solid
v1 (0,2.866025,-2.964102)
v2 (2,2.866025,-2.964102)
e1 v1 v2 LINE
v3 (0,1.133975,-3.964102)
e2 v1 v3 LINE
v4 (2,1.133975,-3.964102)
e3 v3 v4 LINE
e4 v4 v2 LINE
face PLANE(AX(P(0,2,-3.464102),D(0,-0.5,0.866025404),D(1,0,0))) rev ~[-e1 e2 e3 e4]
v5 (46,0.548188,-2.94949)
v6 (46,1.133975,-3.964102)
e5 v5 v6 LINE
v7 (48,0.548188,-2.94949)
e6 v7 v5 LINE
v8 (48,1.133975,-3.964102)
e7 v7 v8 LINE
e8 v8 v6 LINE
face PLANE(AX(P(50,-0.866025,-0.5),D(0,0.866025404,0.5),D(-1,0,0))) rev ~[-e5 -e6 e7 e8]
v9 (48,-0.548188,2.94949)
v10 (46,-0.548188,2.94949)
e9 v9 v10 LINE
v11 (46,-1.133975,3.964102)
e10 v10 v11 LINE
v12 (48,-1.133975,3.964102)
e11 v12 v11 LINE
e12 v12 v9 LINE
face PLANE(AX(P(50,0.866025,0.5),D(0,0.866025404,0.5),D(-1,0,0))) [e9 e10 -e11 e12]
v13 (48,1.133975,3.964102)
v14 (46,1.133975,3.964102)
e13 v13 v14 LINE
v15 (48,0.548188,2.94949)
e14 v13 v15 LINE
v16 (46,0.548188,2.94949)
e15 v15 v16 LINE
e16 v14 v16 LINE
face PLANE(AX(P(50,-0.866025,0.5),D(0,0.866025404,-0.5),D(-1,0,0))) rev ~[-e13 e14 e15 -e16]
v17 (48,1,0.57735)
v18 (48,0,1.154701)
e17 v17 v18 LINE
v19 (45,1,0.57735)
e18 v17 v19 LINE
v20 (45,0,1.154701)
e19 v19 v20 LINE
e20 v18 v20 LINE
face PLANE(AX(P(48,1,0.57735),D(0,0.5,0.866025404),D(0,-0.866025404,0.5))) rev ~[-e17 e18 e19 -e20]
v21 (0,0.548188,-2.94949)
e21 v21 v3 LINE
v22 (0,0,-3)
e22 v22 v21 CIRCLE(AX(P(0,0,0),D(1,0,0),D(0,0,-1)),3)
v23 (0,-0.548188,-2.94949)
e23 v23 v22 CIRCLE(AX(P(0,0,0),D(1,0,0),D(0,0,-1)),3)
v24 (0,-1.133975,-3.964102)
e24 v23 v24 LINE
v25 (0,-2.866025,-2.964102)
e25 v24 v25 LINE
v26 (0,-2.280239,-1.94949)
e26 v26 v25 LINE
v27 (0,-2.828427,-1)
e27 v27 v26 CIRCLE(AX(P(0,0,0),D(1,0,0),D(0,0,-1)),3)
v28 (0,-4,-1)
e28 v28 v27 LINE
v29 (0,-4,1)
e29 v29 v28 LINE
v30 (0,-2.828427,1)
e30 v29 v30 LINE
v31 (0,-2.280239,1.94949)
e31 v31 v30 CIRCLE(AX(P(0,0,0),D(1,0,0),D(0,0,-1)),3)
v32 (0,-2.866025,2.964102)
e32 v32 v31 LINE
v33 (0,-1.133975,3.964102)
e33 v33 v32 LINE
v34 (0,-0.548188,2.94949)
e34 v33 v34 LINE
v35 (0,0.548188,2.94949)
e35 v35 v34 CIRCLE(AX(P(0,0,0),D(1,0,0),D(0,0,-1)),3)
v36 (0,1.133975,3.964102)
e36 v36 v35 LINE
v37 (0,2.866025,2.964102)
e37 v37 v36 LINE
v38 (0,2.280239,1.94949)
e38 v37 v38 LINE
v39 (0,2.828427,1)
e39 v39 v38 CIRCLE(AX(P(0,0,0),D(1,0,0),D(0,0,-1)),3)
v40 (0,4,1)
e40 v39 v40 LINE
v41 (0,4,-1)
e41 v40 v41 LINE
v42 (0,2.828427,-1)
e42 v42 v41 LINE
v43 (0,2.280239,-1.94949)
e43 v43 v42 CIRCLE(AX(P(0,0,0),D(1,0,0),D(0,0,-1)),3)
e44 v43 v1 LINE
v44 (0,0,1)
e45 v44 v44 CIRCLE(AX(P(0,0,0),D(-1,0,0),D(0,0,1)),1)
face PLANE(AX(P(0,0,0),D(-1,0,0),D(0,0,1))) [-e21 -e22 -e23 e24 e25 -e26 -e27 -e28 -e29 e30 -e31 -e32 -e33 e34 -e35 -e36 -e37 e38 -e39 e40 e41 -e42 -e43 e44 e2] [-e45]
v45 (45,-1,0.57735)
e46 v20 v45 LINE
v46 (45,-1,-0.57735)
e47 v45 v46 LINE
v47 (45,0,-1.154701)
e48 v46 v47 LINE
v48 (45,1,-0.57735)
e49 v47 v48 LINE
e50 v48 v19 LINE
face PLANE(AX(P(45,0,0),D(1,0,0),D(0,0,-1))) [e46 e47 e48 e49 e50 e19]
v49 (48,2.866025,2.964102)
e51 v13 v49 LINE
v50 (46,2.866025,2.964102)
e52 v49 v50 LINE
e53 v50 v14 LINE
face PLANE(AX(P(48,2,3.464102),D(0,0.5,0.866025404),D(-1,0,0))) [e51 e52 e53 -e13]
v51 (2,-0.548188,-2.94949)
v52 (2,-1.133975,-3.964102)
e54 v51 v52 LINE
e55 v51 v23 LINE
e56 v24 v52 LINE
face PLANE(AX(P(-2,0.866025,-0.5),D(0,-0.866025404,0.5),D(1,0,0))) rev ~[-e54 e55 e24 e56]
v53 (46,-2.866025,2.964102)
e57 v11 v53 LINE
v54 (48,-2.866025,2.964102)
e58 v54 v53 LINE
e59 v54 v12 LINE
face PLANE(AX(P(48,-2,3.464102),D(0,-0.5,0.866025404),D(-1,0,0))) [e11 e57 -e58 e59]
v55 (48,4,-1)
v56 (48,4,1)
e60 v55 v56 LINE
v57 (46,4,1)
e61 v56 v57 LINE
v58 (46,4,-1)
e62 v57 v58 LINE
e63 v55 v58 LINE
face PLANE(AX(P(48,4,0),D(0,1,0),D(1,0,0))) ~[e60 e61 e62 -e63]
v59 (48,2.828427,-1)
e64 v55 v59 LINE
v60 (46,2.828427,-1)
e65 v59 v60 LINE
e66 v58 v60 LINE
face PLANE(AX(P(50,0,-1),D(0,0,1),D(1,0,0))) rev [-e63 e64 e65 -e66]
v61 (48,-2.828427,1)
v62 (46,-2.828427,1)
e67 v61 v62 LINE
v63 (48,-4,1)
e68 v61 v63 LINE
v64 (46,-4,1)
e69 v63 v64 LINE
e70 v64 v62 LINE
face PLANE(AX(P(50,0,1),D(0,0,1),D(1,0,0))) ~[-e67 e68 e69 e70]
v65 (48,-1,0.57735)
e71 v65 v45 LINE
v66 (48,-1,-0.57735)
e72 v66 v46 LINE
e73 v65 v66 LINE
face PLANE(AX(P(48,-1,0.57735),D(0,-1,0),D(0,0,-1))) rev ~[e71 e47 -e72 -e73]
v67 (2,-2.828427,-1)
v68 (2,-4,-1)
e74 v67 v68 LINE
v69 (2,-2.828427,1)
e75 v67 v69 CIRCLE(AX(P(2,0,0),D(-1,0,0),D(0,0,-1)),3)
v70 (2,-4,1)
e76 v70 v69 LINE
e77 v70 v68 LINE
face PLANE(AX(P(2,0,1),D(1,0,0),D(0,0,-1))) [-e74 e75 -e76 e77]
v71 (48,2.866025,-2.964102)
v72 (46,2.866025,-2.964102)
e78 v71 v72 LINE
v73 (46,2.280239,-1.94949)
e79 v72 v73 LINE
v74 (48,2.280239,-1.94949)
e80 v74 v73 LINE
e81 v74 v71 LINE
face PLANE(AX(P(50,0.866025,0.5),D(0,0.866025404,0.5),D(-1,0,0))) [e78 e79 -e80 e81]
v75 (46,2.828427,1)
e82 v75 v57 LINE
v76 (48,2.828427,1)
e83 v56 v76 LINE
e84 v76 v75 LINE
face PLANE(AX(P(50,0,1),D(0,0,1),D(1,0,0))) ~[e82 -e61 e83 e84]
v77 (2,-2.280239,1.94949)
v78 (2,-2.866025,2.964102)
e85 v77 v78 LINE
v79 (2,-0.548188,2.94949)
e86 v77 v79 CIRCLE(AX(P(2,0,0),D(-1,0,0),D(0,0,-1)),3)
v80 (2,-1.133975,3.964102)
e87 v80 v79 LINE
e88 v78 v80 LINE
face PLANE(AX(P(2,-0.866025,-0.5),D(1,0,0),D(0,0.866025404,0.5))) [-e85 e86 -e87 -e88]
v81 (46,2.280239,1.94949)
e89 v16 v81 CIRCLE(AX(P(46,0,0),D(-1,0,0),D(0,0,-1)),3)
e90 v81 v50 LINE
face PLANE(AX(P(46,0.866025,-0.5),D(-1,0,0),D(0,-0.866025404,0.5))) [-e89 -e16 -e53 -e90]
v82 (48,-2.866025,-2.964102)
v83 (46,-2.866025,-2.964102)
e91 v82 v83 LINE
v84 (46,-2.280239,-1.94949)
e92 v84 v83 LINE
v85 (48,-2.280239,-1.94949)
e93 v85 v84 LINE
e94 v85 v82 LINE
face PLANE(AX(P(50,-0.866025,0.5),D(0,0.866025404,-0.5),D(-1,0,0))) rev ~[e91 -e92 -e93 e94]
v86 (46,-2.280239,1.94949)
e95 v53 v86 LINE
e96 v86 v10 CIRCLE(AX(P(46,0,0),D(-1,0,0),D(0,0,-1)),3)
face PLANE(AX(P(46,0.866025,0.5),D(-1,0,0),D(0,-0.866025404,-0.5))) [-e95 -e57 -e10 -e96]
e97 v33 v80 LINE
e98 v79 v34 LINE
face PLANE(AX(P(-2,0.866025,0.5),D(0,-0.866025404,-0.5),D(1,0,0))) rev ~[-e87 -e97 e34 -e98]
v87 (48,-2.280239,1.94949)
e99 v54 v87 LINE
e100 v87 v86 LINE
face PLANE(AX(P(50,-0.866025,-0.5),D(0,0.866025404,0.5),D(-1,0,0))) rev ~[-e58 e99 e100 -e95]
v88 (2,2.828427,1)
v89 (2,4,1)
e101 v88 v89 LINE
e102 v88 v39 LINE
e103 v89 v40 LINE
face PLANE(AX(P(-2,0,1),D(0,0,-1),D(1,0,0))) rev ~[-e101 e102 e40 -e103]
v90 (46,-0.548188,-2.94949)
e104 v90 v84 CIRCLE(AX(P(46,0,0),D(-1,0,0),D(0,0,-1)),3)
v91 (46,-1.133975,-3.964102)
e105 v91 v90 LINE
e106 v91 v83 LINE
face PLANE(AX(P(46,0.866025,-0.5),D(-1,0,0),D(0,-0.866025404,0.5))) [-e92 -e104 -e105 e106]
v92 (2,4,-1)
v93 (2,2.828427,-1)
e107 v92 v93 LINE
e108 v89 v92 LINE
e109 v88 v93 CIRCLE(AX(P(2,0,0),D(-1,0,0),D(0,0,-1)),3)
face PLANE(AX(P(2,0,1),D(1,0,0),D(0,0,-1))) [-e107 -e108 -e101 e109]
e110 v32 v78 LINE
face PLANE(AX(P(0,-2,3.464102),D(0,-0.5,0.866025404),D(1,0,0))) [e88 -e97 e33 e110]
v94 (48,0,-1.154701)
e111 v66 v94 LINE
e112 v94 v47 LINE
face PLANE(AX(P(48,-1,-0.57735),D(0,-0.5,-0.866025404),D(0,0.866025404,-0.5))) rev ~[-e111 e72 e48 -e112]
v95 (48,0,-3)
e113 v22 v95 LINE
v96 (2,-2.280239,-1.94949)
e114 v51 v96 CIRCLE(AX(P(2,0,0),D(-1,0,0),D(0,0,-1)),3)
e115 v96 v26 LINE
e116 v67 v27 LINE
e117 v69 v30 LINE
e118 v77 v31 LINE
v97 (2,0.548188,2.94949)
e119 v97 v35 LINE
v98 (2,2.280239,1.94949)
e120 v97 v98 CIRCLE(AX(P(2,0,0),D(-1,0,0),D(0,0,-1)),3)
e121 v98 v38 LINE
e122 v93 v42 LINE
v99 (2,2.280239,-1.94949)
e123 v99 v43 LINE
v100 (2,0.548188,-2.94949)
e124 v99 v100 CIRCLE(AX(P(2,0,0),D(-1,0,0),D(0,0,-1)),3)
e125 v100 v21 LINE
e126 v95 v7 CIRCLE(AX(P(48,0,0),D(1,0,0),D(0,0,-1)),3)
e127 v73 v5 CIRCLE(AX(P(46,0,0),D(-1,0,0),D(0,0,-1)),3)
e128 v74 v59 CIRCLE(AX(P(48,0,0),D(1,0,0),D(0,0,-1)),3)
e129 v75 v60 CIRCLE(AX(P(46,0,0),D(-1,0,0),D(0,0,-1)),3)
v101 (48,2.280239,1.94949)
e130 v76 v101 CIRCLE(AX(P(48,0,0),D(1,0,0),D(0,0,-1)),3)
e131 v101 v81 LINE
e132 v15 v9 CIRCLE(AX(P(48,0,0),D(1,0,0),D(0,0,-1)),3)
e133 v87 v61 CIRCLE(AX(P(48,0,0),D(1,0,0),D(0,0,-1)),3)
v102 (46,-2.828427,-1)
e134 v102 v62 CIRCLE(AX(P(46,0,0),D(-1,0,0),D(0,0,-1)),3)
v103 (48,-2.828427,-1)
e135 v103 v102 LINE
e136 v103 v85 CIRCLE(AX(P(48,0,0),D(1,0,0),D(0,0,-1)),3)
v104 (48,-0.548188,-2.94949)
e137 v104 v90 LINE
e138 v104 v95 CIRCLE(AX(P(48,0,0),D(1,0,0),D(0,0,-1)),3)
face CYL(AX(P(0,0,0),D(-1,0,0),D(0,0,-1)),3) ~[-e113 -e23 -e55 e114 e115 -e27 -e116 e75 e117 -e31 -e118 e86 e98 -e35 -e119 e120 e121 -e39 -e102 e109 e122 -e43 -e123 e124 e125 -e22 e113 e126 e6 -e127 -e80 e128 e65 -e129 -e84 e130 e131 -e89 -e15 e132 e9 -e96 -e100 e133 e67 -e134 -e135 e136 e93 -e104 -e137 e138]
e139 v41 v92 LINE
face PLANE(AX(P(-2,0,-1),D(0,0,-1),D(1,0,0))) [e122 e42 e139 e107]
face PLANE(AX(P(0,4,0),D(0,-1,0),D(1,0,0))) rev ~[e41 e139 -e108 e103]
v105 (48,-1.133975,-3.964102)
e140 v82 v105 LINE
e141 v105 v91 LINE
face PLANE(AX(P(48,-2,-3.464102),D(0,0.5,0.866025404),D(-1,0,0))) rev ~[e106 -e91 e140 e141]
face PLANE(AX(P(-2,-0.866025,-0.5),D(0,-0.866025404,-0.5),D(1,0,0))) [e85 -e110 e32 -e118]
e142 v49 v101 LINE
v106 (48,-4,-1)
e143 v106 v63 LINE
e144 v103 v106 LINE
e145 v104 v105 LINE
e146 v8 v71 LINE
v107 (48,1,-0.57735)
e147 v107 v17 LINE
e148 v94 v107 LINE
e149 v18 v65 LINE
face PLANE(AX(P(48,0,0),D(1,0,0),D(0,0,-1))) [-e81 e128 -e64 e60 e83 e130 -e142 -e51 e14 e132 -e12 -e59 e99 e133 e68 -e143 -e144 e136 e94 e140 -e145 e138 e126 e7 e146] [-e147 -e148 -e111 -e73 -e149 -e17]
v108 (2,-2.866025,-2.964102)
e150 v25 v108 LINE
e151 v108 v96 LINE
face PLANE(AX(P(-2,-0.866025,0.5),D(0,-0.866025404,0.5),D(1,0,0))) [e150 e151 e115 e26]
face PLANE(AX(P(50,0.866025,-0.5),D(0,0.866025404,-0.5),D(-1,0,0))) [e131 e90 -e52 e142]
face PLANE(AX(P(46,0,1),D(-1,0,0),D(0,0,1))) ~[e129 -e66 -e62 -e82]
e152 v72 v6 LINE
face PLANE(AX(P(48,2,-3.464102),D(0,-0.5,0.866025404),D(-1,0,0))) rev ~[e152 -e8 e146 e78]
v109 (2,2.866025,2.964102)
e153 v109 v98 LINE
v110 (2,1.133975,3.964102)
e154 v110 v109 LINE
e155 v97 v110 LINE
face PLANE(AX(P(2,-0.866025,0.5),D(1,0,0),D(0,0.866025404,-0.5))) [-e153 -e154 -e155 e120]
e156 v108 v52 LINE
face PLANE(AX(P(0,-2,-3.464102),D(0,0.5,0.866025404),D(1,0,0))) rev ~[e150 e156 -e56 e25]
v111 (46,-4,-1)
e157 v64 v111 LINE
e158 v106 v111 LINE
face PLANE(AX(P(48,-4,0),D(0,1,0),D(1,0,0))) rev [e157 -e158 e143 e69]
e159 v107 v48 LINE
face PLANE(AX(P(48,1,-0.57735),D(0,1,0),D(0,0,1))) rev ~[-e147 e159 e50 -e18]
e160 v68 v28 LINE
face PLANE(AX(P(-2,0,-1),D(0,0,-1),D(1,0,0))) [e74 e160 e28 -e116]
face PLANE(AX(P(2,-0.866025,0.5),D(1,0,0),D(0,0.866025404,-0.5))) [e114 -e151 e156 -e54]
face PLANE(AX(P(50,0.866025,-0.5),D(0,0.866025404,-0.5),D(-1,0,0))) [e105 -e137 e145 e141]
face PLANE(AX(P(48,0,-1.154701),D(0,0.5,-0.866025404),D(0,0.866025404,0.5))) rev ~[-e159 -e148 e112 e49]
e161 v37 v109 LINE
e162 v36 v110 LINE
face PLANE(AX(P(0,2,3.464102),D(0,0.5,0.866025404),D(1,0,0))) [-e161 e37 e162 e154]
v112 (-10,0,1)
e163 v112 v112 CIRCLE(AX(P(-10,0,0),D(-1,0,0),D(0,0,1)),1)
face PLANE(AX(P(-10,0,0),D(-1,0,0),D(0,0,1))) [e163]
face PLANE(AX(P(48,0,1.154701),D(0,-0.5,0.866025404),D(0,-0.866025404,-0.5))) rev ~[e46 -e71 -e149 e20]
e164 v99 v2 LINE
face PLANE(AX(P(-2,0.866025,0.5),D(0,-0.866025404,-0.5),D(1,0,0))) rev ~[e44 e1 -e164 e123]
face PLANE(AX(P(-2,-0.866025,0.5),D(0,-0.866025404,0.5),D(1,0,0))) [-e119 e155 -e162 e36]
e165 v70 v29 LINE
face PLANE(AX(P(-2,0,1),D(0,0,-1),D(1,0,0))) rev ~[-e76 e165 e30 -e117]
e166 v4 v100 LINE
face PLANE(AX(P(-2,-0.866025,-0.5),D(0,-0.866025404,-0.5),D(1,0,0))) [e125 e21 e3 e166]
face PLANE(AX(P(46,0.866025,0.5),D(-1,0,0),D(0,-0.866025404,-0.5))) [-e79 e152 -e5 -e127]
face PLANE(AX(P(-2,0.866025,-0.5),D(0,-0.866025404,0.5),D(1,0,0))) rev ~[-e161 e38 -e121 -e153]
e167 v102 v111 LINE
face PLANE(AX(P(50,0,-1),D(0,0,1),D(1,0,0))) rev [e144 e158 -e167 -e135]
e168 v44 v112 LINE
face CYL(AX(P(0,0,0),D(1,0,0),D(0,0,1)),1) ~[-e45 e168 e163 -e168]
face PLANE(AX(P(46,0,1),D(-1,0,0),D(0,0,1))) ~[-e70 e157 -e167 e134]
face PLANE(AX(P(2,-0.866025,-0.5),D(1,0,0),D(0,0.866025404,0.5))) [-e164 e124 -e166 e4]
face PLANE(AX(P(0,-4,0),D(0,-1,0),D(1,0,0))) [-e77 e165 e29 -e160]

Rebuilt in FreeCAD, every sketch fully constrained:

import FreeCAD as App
import Part
import Sketcher
from FreeCAD import Vector
Q = App.Units.Quantity


def add_polygon(sketch, points):
    """Adds a closed chain of lines whose ends are joined by coincident constraints."""
    first, n = sketch.GeometryCount, len(points)
    for a, b in zip(points, points[1:] + points[:1]):
        sketch.addGeometry(Part.LineSegment(App.Vector(*a, 0), App.Vector(*b, 0)), False)
    for i in range(n):
        sketch.addConstraint(Sketcher.Constraint("Coincident", first + i, 2, first + (i + 1) % n, 1))

doc = App.newDocument("Part")
body = doc.addObject("PartDesign::Body", "Body")

sketch1 = body.newObject("Sketcher::SketchObject", "Sketch")
sketch1.AttachmentSupport = (doc.getObject("YZ_Plane"), [""])
sketch1.MapMode = "FlatFace"
sketch1.addGeometry(Part.Circle(Vector(0, 0, 0), Vector(0, 0, 1), 3), False)
sketch1.addConstraint([
    Sketcher.Constraint("Coincident", 0, 3, -1, 1),
    Sketcher.Constraint("Diameter", 0, Q("6 mm")),
])
pad1 = body.newObject("PartDesign::Pad", "Pad")
pad1.Profile = sketch1
pad1.Length = 48

sketch2 = body.newObject("Sketcher::SketchObject", "Sketch001")
sketch2.AttachmentSupport = (doc.getObject("XZ_Plane"), [""])
sketch2.MapMode = "FlatFace"
add_polygon(sketch2, [(-2, -1), (-2, 1), (2, 1), (2, -1)])
sketch2.addConstraint([
    Sketcher.Constraint("Vertical", 0),
    Sketcher.Constraint("Horizontal", 1),
    Sketcher.Constraint("Vertical", 2),
    Sketcher.Constraint("Horizontal", 3),
    Sketcher.Constraint("Symmetric", 0, 2, 2, 2, -1, 1),
    Sketcher.Constraint("DistanceX", 1, 1, 1, 2, Q("4 mm")),
    Sketcher.Constraint("DistanceY", 0, 1, 0, 2, Q("2 mm")),
])
pad2 = body.newObject("PartDesign::Pad", "Pad001")
pad2.Profile = sketch2
pad2.Length = 8
pad2.Midplane = True

sketch3 = body.newObject("Sketcher::SketchObject", "Sketch002")
sketch3.AttachmentSupport = (doc.getObject("YZ_Plane"), [""])
sketch3.MapMode = "FlatFace"
sketch3.AttachmentOffset = App.Placement(Vector(0, 0, -2), App.Rotation())
sketch3.addGeometry(Part.Circle(Vector(0, 0, 0), Vector(0, 0, 1), 4.5), False)
sketch3.addConstraint([
    Sketcher.Constraint("Coincident", 0, 3, -1, 1),
    Sketcher.Constraint("Diameter", 0, Q("8.942484 mm")),
])
pocket1 = body.newObject("PartDesign::Pocket", "Pocket")
pocket1.Profile = sketch3
pocket1.Length = 2
pocket1.Reversed = True
doc.recompute()

polarpattern = body.newObject("PartDesign::PolarPattern", "PolarPattern")
polarpattern.Originals = [pad2]
polarpattern.Axis = (doc.getObject("X_Axis"), [""])
polarpattern.Angle = 360
polarpattern.Occurrences = 6
body.Tip = polarpattern

sketch4 = body.newObject("Sketcher::SketchObject", "Sketch003")
sketch4.AttachmentSupport = (doc.getObject("YZ_Plane"), [""])
sketch4.MapMode = "FlatFace"
sketch4.AttachmentOffset = App.Placement(Vector(0, 0, -2), App.Rotation())
sketch4.addGeometry(Part.Circle(Vector(0, 0, 0), Vector(0, 0, 1), 8), False)
sketch4.addConstraint([
    Sketcher.Constraint("Coincident", 0, 3, -1, 1),
    Sketcher.Constraint("Diameter", 0, Q("15.450265 mm")),
])
pocket2 = body.newObject("PartDesign::Pocket", "Pocket001")
pocket2.Profile = sketch4
pocket2.Length = 2
pocket2.Reversed = True
doc.recompute()

datumplane = body.newObject("PartDesign::Plane", "DatumPlane")
datumplane.AttachmentSupport = (doc.getObject("YZ_Plane"), [""])
datumplane.MapMode = "FlatFace"
datumplane.AttachmentOffset = App.Placement(Vector(0, 0, 24), App.Rotation())
mirrored = body.newObject("PartDesign::Mirrored", "Mirrored")
mirrored.Originals = [pad1, pad2]
mirrored.MirrorPlane = (datumplane, [""])
body.Tip = mirrored

sketch5 = body.newObject("Sketcher::SketchObject", "Sketch004")
sketch5.Placement = App.Placement(Vector(48, 0, 0), App.Rotation(Vector(-1, 0, 0), Vector(0, -0.866025404, 0.5), Vector(0, 0.5, 0.866025404), "ZXY"))
add_polygon(sketch5, [(-2, 1), (-2, -1), (2, -1), (2, 1)])
sketch5.addConstraint([
    Sketcher.Constraint("Vertical", 0),
    Sketcher.Constraint("Horizontal", 1),
    Sketcher.Constraint("Vertical", 2),
    Sketcher.Constraint("Horizontal", 3),
    Sketcher.Constraint("Symmetric", 0, 2, 2, 2, -1, 1),
    Sketcher.Constraint("DistanceX", 1, 1, 1, 2, Q("4 mm")),
    Sketcher.Constraint("DistanceY", 0, 2, 0, 1, Q("2 mm")),
])
pad3 = body.newObject("PartDesign::Pad", "Pad002")
pad3.Profile = sketch5
pad3.Length = 8
pad3.Midplane = True

sketch6 = body.newObject("Sketcher::SketchObject", "Sketch005")
sketch6.Placement = App.Placement(Vector(48, 0, 0), App.Rotation(Vector(-1, 0, 0), Vector(0, -0.866025404, -0.5), Vector(0, -0.5, 0.866025404), "ZXY"))
add_polygon(sketch6, [(-2, 1), (-2, -1), (2, -1), (2, 1)])
sketch6.addConstraint([
    Sketcher.Constraint("Vertical", 0),
    Sketcher.Constraint("Horizontal", 1),
    Sketcher.Constraint("Vertical", 2),
    Sketcher.Constraint("Horizontal", 3),
    Sketcher.Constraint("Symmetric", 0, 2, 2, 2, -1, 1),
    Sketcher.Constraint("DistanceX", 1, 1, 1, 2, Q("4 mm")),
    Sketcher.Constraint("DistanceY", 0, 2, 0, 1, Q("2 mm")),
])
pad4 = body.newObject("PartDesign::Pad", "Pad003")
pad4.Profile = sketch6
pad4.Length = 8
pad4.Midplane = True

sketch7 = body.newObject("Sketcher::SketchObject", "Sketch006")
sketch7.AttachmentSupport = (doc.getObject("XZ_Plane"), [""])
sketch7.MapMode = "FlatFace"
add_polygon(sketch7, [(50, -1), (50, 1), (46, 1), (46, -1)])
sketch7.addConstraint([
    Sketcher.Constraint("Vertical", 0),
    Sketcher.Constraint("Horizontal", 1),
    Sketcher.Constraint("Vertical", 2),
    Sketcher.Constraint("Horizontal", 3),
    Sketcher.Constraint("DistanceX", 1, 2, 1, 1, Q("4 mm")),
    Sketcher.Constraint("DistanceY", 0, 1, 0, 2, Q("2 mm")),
    Sketcher.Constraint("DistanceX", -1, 1, 0, 2, Q("50 mm")),
    Sketcher.Constraint("DistanceY", -1, 1, 0, 2, Q("1 mm")),
])
pad5 = body.newObject("PartDesign::Pad", "Pad004")
pad5.Profile = sketch7
pad5.Length = 8
pad5.Midplane = True

sketch8 = body.newObject("Sketcher::SketchObject", "Sketch007")
sketch8.Placement = App.Placement(Vector(48, 0, 0), App.Rotation(Vector(-1, 0, 0), Vector(0, 0.866025404, -0.5), Vector(0, -0.5, -0.866025404), "ZXY"))
add_polygon(sketch8, [(-2, 1), (-2, -1), (2, -1), (2, 1)])
sketch8.addConstraint([
    Sketcher.Constraint("Vertical", 0),
    Sketcher.Constraint("Horizontal", 1),
    Sketcher.Constraint("Vertical", 2),
    Sketcher.Constraint("Horizontal", 3),
    Sketcher.Constraint("Symmetric", 0, 2, 2, 2, -1, 1),
    Sketcher.Constraint("DistanceX", 1, 1, 1, 2, Q("4 mm")),
    Sketcher.Constraint("DistanceY", 0, 2, 0, 1, Q("2 mm")),
])
pad6 = body.newObject("PartDesign::Pad", "Pad005")
pad6.Profile = sketch8
pad6.Length = 8
pad6.Midplane = True

sketch9 = body.newObject("Sketcher::SketchObject", "Sketch008")
sketch9.Placement = App.Placement(Vector(48, 0, 0), App.Rotation(Vector(-1, 0, 0), Vector(0, 0.866025404, 0.5), Vector(0, 0.5, -0.866025404), "ZXY"))
add_polygon(sketch9, [(-2, 1), (-2, -1), (2, -1), (2, 1)])
sketch9.addConstraint([
    Sketcher.Constraint("Vertical", 0),
    Sketcher.Constraint("Horizontal", 1),
    Sketcher.Constraint("Vertical", 2),
    Sketcher.Constraint("Horizontal", 3),
    Sketcher.Constraint("Symmetric", 0, 2, 2, 2, -1, 1),
    Sketcher.Constraint("DistanceX", 1, 1, 1, 2, Q("4 mm")),
    Sketcher.Constraint("DistanceY", 0, 2, 0, 1, Q("2 mm")),
])
pad7 = body.newObject("PartDesign::Pad", "Pad006")
pad7.Profile = sketch9
pad7.Length = 8
pad7.Midplane = True

sketch10 = body.newObject("Sketcher::SketchObject", "Sketch009")
sketch10.AttachmentSupport = (doc.getObject("YZ_Plane"), [""])
sketch10.MapMode = "FlatFace"
sketch10.AttachmentOffset = App.Placement(Vector(0, 0, 50), App.Rotation())
sketch10.addGeometry(Part.Circle(Vector(0, 0, 0), Vector(0, 0, 1), 7), False)
sketch10.addConstraint([
    Sketcher.Constraint("Coincident", 0, 3, -1, 1),
    Sketcher.Constraint("Diameter", 0, Q("14.361801 mm")),
])
pocket3 = body.newObject("PartDesign::Pocket", "Pocket002")
pocket3.Profile = sketch10
pocket3.Length = 2

sketch11 = body.newObject("Sketcher::SketchObject", "Sketch010")
sketch11.AttachmentSupport = (doc.getObject("YZ_Plane"), [""])
sketch11.MapMode = "FlatFace"
sketch11.addGeometry(Part.Circle(Vector(0, 0, 0), Vector(0, 0, 1), 1), False)
sketch11.addConstraint([
    Sketcher.Constraint("Coincident", 0, 3, -1, 1),
    Sketcher.Constraint("Diameter", 0, Q("2 mm")),
])
pad8 = body.newObject("PartDesign::Pad", "Pad007")
pad8.Profile = sketch11
pad8.Length = 10
pad8.Reversed = True

sketch12 = body.newObject("Sketcher::SketchObject", "Sketch011")
sketch12.AttachmentSupport = (doc.getObject("YZ_Plane"), [""])
sketch12.MapMode = "FlatFace"
sketch12.AttachmentOffset = App.Placement(Vector(0, 0, 48), App.Rotation())
add_polygon(sketch12, [(1, 0.6), (0, 1.2), (-1, 0.6), (-1, -0.6), (0, -1.2), (1, -0.6)])
sketch12.addConstraint([
    Sketcher.Constraint("Vertical", 2),
    Sketcher.Constraint("Vertical", 5),
    Sketcher.Constraint("Symmetric", 0, 2, 3, 2, -1, 1),
    Sketcher.Constraint("Symmetric", 1, 2, 4, 2, -1, 1),
    Sketcher.Constraint("PointOnObject", 0, 2, -2),
    Sketcher.Constraint("Parallel", 0, 3),
    Sketcher.Constraint("Horizontal", 2, 2, 4, 2),
    Sketcher.Constraint("Angle", 0, Q("150 deg")),
    Sketcher.Constraint("DistanceX", 1, 2, -1, 1, Q("1 mm")),
    Sketcher.Constraint("DistanceY", 2, 2, 2, 1, Q("1.154701 mm")),
])
pocket4 = body.newObject("PartDesign::Pocket", "Pocket003")
pocket4.Profile = sketch12
pocket4.Length = 3

doc.recompute()
